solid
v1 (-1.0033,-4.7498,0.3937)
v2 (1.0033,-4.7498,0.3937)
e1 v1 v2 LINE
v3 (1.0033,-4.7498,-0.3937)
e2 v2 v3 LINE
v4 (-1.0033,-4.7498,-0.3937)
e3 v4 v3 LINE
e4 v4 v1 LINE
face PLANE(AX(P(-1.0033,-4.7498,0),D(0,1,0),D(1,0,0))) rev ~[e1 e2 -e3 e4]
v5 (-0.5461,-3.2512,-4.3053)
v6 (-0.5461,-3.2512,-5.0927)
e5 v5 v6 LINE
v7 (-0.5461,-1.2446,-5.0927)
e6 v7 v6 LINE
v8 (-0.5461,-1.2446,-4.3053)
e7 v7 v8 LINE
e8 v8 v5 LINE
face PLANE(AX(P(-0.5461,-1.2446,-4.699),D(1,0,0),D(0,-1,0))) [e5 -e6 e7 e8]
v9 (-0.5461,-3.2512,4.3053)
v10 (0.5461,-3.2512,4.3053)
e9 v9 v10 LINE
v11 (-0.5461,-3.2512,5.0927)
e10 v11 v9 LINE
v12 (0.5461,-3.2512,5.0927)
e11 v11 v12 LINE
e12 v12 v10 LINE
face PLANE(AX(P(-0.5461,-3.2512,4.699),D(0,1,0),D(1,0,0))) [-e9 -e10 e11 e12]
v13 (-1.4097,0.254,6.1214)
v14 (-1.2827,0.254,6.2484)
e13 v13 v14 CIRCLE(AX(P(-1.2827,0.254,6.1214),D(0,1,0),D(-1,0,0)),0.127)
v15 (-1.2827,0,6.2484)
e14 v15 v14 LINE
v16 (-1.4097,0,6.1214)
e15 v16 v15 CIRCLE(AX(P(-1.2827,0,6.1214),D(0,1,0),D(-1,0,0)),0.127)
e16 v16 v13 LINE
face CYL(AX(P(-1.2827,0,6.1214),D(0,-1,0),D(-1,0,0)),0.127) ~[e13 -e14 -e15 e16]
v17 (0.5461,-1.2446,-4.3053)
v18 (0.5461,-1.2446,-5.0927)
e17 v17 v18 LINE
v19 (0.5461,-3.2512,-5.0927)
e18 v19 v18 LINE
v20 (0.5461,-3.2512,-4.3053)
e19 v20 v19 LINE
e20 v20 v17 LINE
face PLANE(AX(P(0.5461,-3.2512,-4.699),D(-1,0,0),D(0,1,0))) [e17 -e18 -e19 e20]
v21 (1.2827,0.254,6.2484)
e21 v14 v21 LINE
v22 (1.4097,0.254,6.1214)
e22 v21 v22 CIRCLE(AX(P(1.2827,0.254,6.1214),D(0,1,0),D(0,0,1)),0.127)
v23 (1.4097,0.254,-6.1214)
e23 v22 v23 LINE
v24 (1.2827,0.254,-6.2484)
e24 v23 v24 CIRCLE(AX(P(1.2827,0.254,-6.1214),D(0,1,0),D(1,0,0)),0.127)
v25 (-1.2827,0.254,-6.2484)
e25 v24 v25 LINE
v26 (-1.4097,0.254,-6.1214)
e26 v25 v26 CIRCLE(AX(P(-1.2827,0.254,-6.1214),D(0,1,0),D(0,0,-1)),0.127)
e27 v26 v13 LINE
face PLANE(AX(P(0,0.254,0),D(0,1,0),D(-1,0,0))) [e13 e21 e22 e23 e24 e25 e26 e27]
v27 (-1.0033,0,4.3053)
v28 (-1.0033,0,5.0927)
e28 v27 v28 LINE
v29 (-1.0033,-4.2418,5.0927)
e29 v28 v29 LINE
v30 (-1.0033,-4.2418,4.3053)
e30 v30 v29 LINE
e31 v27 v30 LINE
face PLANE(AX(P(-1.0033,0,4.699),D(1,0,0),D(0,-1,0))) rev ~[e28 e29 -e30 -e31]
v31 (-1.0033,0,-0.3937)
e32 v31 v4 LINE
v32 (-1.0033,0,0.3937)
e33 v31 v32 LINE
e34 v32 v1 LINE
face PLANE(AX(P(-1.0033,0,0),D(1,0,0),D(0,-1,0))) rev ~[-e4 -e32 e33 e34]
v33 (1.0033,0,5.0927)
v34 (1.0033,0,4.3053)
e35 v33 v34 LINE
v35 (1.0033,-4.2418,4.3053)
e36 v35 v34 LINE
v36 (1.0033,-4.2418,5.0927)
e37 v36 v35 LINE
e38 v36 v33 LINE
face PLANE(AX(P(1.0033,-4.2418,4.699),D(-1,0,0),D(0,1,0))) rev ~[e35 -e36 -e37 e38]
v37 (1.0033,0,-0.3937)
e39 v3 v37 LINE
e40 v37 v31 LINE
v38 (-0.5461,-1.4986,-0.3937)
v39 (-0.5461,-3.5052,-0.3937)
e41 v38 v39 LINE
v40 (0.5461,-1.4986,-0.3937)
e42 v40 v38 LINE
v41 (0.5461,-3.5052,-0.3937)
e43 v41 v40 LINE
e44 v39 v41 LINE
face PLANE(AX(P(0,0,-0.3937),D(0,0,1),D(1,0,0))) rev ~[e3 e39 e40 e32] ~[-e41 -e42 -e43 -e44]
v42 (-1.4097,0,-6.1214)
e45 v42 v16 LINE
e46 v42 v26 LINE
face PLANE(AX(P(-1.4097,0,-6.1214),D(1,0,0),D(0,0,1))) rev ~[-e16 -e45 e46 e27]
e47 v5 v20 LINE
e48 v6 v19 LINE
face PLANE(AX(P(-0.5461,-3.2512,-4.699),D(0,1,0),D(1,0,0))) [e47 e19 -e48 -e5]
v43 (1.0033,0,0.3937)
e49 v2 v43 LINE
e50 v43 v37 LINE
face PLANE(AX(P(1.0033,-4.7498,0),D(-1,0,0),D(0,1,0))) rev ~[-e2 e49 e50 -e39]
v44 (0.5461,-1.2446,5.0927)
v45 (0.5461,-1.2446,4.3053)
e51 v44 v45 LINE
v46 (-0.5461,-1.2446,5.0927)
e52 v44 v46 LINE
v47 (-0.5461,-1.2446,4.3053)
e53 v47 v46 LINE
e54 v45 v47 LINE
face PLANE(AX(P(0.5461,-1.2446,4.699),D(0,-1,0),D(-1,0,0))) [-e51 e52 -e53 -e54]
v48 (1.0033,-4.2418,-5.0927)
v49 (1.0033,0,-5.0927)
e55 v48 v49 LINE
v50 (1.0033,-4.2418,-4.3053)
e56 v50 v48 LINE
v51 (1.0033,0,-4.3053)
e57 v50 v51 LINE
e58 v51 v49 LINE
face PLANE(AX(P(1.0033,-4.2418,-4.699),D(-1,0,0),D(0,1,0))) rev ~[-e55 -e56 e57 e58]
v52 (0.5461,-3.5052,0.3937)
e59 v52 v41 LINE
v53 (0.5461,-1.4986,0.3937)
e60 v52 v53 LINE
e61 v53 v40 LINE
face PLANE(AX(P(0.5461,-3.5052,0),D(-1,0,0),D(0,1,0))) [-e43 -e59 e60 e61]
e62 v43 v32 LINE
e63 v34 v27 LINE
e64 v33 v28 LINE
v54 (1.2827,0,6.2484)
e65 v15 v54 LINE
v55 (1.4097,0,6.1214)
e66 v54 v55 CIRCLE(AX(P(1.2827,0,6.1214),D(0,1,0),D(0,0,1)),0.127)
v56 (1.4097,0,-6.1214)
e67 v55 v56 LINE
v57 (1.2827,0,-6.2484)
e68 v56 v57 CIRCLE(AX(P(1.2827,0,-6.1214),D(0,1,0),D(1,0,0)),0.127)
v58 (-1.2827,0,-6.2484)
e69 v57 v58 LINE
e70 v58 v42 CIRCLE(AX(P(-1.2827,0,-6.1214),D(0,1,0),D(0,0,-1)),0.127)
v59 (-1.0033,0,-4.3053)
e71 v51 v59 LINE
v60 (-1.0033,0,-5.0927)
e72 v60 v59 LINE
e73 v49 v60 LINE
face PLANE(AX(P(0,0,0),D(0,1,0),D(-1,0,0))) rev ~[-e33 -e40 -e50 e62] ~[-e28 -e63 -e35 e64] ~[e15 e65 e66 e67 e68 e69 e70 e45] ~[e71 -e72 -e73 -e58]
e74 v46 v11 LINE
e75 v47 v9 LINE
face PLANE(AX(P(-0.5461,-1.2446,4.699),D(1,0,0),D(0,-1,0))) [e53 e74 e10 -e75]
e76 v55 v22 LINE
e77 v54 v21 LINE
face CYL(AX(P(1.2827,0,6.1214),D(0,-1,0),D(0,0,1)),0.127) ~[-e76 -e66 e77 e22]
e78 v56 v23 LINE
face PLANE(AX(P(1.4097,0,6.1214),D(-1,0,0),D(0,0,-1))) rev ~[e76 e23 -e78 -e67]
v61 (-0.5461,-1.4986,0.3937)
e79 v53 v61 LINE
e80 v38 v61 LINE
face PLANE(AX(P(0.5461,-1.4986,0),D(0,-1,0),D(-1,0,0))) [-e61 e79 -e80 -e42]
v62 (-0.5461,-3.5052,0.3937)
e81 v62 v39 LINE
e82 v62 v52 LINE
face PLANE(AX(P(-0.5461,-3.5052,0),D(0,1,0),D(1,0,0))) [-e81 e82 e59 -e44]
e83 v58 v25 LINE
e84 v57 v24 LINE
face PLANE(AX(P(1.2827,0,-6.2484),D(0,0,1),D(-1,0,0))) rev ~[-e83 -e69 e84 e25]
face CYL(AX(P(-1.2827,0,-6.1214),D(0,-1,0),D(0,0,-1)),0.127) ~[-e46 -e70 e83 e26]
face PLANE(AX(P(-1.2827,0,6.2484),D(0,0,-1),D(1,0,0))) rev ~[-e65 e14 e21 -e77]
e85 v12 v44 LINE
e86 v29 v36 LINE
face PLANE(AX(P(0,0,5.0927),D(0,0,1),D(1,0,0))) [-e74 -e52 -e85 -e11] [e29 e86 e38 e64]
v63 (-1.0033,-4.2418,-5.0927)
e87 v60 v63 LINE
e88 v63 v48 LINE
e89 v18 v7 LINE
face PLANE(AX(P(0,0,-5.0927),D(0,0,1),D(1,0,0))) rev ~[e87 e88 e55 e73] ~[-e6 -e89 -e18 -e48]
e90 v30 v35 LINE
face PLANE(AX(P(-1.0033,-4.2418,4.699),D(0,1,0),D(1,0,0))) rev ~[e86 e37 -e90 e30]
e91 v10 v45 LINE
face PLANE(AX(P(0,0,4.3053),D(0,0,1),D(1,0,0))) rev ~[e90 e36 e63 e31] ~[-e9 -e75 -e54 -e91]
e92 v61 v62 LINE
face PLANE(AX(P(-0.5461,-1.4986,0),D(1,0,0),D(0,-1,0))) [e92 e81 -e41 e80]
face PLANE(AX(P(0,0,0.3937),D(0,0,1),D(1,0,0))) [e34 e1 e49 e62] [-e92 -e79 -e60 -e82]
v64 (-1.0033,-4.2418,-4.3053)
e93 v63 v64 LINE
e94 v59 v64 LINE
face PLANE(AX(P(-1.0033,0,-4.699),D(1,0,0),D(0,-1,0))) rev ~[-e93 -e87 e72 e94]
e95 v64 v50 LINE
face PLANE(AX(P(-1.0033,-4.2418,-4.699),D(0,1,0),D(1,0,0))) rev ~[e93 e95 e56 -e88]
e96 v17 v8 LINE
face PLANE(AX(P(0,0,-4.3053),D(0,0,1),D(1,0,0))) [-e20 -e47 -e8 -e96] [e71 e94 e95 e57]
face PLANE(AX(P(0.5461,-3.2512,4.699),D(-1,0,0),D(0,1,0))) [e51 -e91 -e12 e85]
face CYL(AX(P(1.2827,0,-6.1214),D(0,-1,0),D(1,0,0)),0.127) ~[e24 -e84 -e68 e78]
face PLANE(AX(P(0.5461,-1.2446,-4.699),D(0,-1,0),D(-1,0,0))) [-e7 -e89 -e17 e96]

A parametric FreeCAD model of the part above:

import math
import FreeCAD as App
import Part
import Sketcher
Q = App.Units.Quantity


def add_polygon(sketch, points):
    """Adds a closed chain of lines whose ends are joined by coincident constraints."""
    first, n = sketch.GeometryCount, len(points)
    for a, b in zip(points, points[1:] + points[:1]):
        sketch.addGeometry(Part.LineSegment(App.Vector(*a, 0), App.Vector(*b, 0)), False)
    for i in range(n):
        sketch.addConstraint(Sketcher.Constraint("Coincident", first + i, 2, first + (i + 1) % n, 1))

doc = App.newDocument("Part")
body = doc.addObject("PartDesign::Body", "Body")

sketch1 = body.newObject("Sketcher::SketchObject", "Sketch")
sketch1.AttachmentSupport = (doc.getObject("XZ_Plane"), [""])
sketch1.MapMode = "FlatFace"
sketch1.addGeometry([
    Part.ArcOfCircle(Part.Circle(App.Vector(-1.28, -6.12, 0), App.Vector(0, 0, 1), 0.13), math.radians(180), math.radians(270)),
    Part.LineSegment(App.Vector(-1.41, -6.12, 0), App.Vector(-1.41, 6.12, 0)),
    Part.ArcOfCircle(Part.Circle(App.Vector(-1.28, 6.12, 0), App.Vector(0, 0, 1), 0.13), math.radians(90), math.radians(180)),
    Part.LineSegment(App.Vector(-1.28, 6.25, 0), App.Vector(1.28, 6.25, 0)),
    Part.ArcOfCircle(Part.Circle(App.Vector(1.28, 6.12, 0), App.Vector(0, 0, 1), 0.13), math.radians(0), math.radians(90)),
    Part.LineSegment(App.Vector(1.41, 6.12, 0), App.Vector(1.41, -6.12, 0)),
    Part.ArcOfCircle(Part.Circle(App.Vector(1.28, -6.12, 0), App.Vector(0, 0, 1), 0.13), math.radians(-90), math.radians(0)),
    Part.LineSegment(App.Vector(1.28, -6.25, 0), App.Vector(-1.28, -6.25, 0)),
], False)
sketch1.addConstraint([
    Sketcher.Constraint("Tangent", 0, 1, 1, 1),
    Sketcher.Constraint("Tangent", 1, 2, 2, 2),
    Sketcher.Constraint("Tangent", 2, 1, 3, 1),
    Sketcher.Constraint("Tangent", 3, 2, 4, 2),
    Sketcher.Constraint("Tangent", 4, 1, 5, 1),
    Sketcher.Constraint("Tangent", 5, 2, 6, 2),
    Sketcher.Constraint("Tangent", 6, 1, 7, 1),
    Sketcher.Constraint("Tangent", 7, 2, 0, 2),
    Sketcher.Constraint("Vertical", 1),
    Sketcher.Constraint("Horizontal", 3),
    Sketcher.Constraint("Vertical", 5),
    Sketcher.Constraint("Horizontal", 7),
    Sketcher.Constraint("Equal", 0, 2),
    Sketcher.Constraint("Equal", 2, 4),
    Sketcher.Constraint("Equal", 4, 6),
    Sketcher.Constraint("Symmetric", 0, 3, 4, 3, -1, 1),
    Sketcher.Constraint("Radius", 0, Q("0.005 in")),
    Sketcher.Constraint("DistanceX", 3, 1, 3, 2, Q("0.101 in")),
    Sketcher.Constraint("DistanceY", 1, 1, 1, 2, Q("0.482 in")),
])
pad1 = body.newObject("PartDesign::Pad", "Pad")
pad1.Profile = sketch1
pad1.Length = Q("0.01 in")
pad1.Reversed = True

sketch2 = body.newObject("Sketcher::SketchObject", "Sketch001")
sketch2.AttachmentSupport = (doc.getObject("XY_Plane"), [""])
sketch2.MapMode = "FlatFace"
sketch2.AttachmentOffset = App.Placement(App.Vector(0, 0, -0.185 * 25.4), App.Rotation())
add_polygon(sketch2, [(1, 0), (-1, 0), (-1, -4.2), (1, -4.2)])
add_polygon(sketch2, [(-0.5, -3.3), (-0.5, -1.2), (0.5, -1.2), (0.5, -3.3)])
sketch2.addConstraint([
    Sketcher.Constraint("Horizontal", 0),
    Sketcher.Constraint("Vertical", 1),
    Sketcher.Constraint("Horizontal", 2),
    Sketcher.Constraint("Vertical", 3),
    Sketcher.Constraint("Vertical", 4),
    Sketcher.Constraint("Horizontal", 5),
    Sketcher.Constraint("Vertical", 6),
    Sketcher.Constraint("Horizontal", 7),
    Sketcher.Constraint("Symmetric", 0, 2, 3, 2, -1, 1),
    Sketcher.Constraint("Equal", 2, 4),
    Sketcher.Constraint("DistanceX", 0, 2, 0, 1, Q("0.079 in")),
    Sketcher.Constraint("DistanceX", 5, 1, 5, 2, Q("0.043 in")),
    Sketcher.Constraint("DistanceY", 1, 2, 1, 1, Q("0.167 in")),
    Sketcher.Constraint("DistanceY", 4, 2, -1, 1, Q("0.049 in")),
    Sketcher.Constraint("DistanceX", 0, 2, 4, 2, Q("0.018 in")),
])
pad2 = body.newObject("PartDesign::Pad", "Pad001")
pad2.Profile = sketch2
pad2.Length = Q("0.031 in")
pad2.Midplane = True

sketch3 = body.newObject("Sketcher::SketchObject", "Sketch002")
sketch3.AttachmentSupport = (doc.getObject("XY_Plane"), [""])
sketch3.MapMode = "FlatFace"
sketch3.AttachmentOffset = App.Placement(App.Vector(0, 0, 0.185 * 25.4), App.Rotation())
add_polygon(sketch3, [(1, 0), (-1, 0), (-1, -4.2), (1, -4.2)])
add_polygon(sketch3, [(-0.5, -3.3), (-0.5, -1.2), (0.5, -1.2), (0.5, -3.3)])
sketch3.addConstraint([
    Sketcher.Constraint("Horizontal", 0),
    Sketcher.Constraint("Vertical", 1),
    Sketcher.Constraint("Horizontal", 2),
    Sketcher.Constraint("Vertical", 3),
    Sketcher.Constraint("Vertical", 4),
    Sketcher.Constraint("Horizontal", 5),
    Sketcher.Constraint("Vertical", 6),
    Sketcher.Constraint("Horizontal", 7),
    Sketcher.Constraint("Symmetric", 0, 2, 3, 2, -1, 1),
    Sketcher.Constraint("Equal", 2, 4),
    Sketcher.Constraint("DistanceX", 0, 2, 0, 1, Q("0.079 in")),
    Sketcher.Constraint("DistanceX", 5, 1, 5, 2, Q("0.043 in")),
    Sketcher.Constraint("DistanceY", 1, 2, 1, 1, Q("0.167 in")),
    Sketcher.Constraint("DistanceY", 4, 2, -1, 1, Q("0.049 in")),
    Sketcher.Constraint("DistanceX", 0, 2, 4, 2, Q("0.018 in")),
])
pad3 = body.newObject("PartDesign::Pad", "Pad002")
pad3.Profile = sketch3
pad3.Length = Q("0.031 in")
pad3.Midplane = True

sketch4 = body.newObject("Sketcher::SketchObject", "Sketch003")
sketch4.AttachmentSupport = (doc.getObject("XY_Plane"), [""])
sketch4.MapMode = "FlatFace"
add_polygon(sketch4, [(1, 0), (-1, 0), (-1, -4.7), (1, -4.7)])
add_polygon(sketch4, [(-0.5, -3.5), (-0.5, -1.5), (0.5, -1.5), (0.5, -3.5)])
sketch4.addConstraint([
    Sketcher.Constraint("Horizontal", 0),
    Sketcher.Constraint("Vertical", 1),
    Sketcher.Constraint("Horizontal", 2),
    Sketcher.Constraint("Vertical", 3),
    Sketcher.Constraint("Vertical", 4),
    Sketcher.Constraint("Horizontal", 5),
    Sketcher.Constraint("Vertical", 6),
    Sketcher.Constraint("Horizontal", 7),
    Sketcher.Constraint("Symmetric", 0, 2, 3, 2, -1, 1),
    Sketcher.Constraint("Equal", 2, 4),
    Sketcher.Constraint("DistanceX", 0, 2, 0, 1, Q("0.079 in")),
    Sketcher.Constraint("DistanceX", 5, 1, 5, 2, Q("0.043 in")),
    Sketcher.Constraint("DistanceY", 1, 2, 1, 1, Q("0.187 in")),
    Sketcher.Constraint("DistanceY", 4, 2, -1, 1, Q("0.059 in")),
    Sketcher.Constraint("DistanceX", 0, 2, 4, 2, Q("0.018 in")),
])
pad4 = body.newObject("PartDesign::Pad", "Pad003")
pad4.Profile = sketch4
pad4.Length = Q("0.031 in")
pad4.Midplane = True

doc.recompute()
